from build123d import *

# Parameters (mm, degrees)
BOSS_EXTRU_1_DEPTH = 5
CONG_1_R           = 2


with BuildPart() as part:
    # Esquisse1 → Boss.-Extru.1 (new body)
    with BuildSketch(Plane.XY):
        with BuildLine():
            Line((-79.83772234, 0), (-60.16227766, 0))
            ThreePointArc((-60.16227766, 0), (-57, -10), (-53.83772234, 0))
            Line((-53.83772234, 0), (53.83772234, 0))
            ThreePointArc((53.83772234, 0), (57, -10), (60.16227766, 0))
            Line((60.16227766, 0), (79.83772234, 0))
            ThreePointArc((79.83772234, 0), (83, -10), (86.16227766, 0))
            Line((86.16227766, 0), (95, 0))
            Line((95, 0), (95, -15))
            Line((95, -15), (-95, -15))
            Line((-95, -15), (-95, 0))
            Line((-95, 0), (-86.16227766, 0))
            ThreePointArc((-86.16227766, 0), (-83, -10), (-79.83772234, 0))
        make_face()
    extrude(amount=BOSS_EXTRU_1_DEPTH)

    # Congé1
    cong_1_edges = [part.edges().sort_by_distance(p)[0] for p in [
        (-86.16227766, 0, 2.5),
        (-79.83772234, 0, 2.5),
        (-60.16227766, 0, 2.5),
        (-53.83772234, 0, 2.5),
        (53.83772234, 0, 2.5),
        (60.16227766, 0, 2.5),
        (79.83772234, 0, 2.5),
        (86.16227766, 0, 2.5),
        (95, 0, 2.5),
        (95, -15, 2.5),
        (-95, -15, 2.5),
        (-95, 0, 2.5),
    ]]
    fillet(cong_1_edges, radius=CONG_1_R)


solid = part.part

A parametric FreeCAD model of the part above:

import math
import FreeCAD as App
import Part
import Sketcher
from FreeCAD import Vector
Q = App.Units.Quantity


def edges_at(feature, points):
    """Names of the edges that pass closest to the given points."""
    edges = feature.Shape.Edges
    near = lambda p: min(range(len(edges)), key=lambda i: edges[i].distToShape(Part.Vertex(*p))[0])
    return sorted({f"Edge{near(p) + 1}" for p in points})

doc = App.newDocument("Part")
body = doc.addObject("PartDesign::Body", "Body")

# Sketch on XY plane
sketch1 = body.newObject("Sketcher::SketchObject", "Sketch")
sketch1.AttachmentSupport = (doc.getObject("XY_Plane"), [""])
sketch1.MapMode = "FlatFace"
sketch1.addGeometry([
    Part.LineSegment(Vector(-60, 0, 0), Vector(-80, 0, 0)),  # 0
    Part.ArcOfCircle(Part.Circle(Vector(-83, -4, 0), Vector(0, 0, 1), 6), math.radians(125), math.radians(415)),  # 1
    Part.LineSegment(Vector(-86, 0, 0), Vector(-95, 0, 0)),  # 2
    Part.LineSegment(Vector(-95, 0, 0), Vector(-95, -15, 0)),  # 3
    Part.LineSegment(Vector(-95, -15, 0), Vector(95, -15, 0)),  # 4
    Part.LineSegment(Vector(95, -15, 0), Vector(95, 0, 0)),  # 5
    Part.LineSegment(Vector(95, 0, 0), Vector(86, 0, 0)),  # 6
    Part.ArcOfCircle(Part.Circle(Vector(83, -4, 0), Vector(0, 0, 1), 6), math.radians(125), math.radians(415)),  # 7
    Part.LineSegment(Vector(80, 0, 0), Vector(60, 0, 0)),  # 8
    Part.ArcOfCircle(Part.Circle(Vector(57, -4, 0), Vector(0, 0, 1), 6), math.radians(125), math.radians(415)),  # 9
    Part.LineSegment(Vector(54, 0, 0), Vector(-54, 0, 0)),  # 10
    Part.ArcOfCircle(Part.Circle(Vector(-57, -4, 0), Vector(0, 0, 1), 6), math.radians(125), math.radians(415)),  # 11
], False)
sketch1.addConstraint([
    Sketcher.Constraint("Coincident", 0, 2, 1, 2),
    Sketcher.Constraint("Coincident", 1, 1, 2, 1),
    Sketcher.Constraint("Coincident", 2, 2, 3, 1),
    Sketcher.Constraint("Coincident", 3, 2, 4, 1),
    Sketcher.Constraint("Coincident", 4, 2, 5, 1),
    Sketcher.Constraint("Coincident", 5, 2, 6, 1),
    Sketcher.Constraint("Coincident", 6, 2, 7, 2),
    Sketcher.Constraint("Coincident", 7, 1, 8, 1),
    Sketcher.Constraint("Coincident", 8, 2, 9, 2),
    Sketcher.Constraint("Coincident", 9, 1, 10, 1),
    Sketcher.Constraint("Coincident", 10, 2, 11, 2),
    Sketcher.Constraint("Coincident", 11, 1, 0, 1),
    Sketcher.Constraint("Horizontal", 0),
    Sketcher.Constraint("Horizontal", 2),
    Sketcher.Constraint("Vertical", 3),
    Sketcher.Constraint("Horizontal", 4),
    Sketcher.Constraint("Vertical", 5),
    Sketcher.Constraint("Horizontal", 6),
    Sketcher.Constraint("Horizontal", 8),
    Sketcher.Constraint("Horizontal", 10),
    Sketcher.Constraint("Equal", 1, 7),
    Sketcher.Constraint("Equal", 7, 9),
    Sketcher.Constraint("Equal", 9, 11),
    Sketcher.Constraint("Symmetric", 2, 2, 5, 2, -1, 1),
    Sketcher.Constraint("Symmetric", 0, 2, 7, 1, -1, 1),
    Sketcher.Constraint("Symmetric", 9, 1, 10, 2, -1, 1),
    Sketcher.Constraint("Symmetric", 1, 3, 7, 3, -2),
    Sketcher.Constraint("PointOnObject", 1, 1, -1),
    Sketcher.Constraint("Horizontal", 7, 3, 9, 3),
    Sketcher.Constraint("Horizontal", 9, 3, 11, 3),
    Sketcher.Constraint("Radius", 1, Q("5.5 mm")),
    Sketcher.Constraint("DistanceX", 4, 1, 4, 2, Q("190 mm")),
    Sketcher.Constraint("DistanceY", 3, 2, 3, 1, Q("15 mm")),
    Sketcher.Constraint("DistanceX", 1, 3, -1, 1, Q("83 mm")),
    Sketcher.Constraint("DistanceX", -1, 1, 9, 3, Q("57 mm")),
    Sketcher.Constraint("DistanceY", 1, 3, -1, 1, Q("4.5 mm")),
])
pad1 = body.newObject("PartDesign::Pad", "Pad")
pad1.Profile = sketch1
pad1.Length = 5
doc.recompute()

fillet = body.newObject("PartDesign::Fillet", "Fillet")
fillet.Base = (pad1, edges_at(pad1, [
    (-86.162, 0, 2.5),
    (-79.838, 0, 2.5),
    (-60.162, 0, 2.5),
    (-53.838, 0, 2.5),
    (53.838, 0, 2.5),
    (60.162, 0, 2.5),
    (79.838, 0, 2.5),
    (86.162, 0, 2.5),
    (95, 0, 2.5),
    (95, -15, 2.5),
    (-95, -15, 2.5),
    (-95, 0, 2.5),
]))
fillet.Radius = 2

doc.recompute()
